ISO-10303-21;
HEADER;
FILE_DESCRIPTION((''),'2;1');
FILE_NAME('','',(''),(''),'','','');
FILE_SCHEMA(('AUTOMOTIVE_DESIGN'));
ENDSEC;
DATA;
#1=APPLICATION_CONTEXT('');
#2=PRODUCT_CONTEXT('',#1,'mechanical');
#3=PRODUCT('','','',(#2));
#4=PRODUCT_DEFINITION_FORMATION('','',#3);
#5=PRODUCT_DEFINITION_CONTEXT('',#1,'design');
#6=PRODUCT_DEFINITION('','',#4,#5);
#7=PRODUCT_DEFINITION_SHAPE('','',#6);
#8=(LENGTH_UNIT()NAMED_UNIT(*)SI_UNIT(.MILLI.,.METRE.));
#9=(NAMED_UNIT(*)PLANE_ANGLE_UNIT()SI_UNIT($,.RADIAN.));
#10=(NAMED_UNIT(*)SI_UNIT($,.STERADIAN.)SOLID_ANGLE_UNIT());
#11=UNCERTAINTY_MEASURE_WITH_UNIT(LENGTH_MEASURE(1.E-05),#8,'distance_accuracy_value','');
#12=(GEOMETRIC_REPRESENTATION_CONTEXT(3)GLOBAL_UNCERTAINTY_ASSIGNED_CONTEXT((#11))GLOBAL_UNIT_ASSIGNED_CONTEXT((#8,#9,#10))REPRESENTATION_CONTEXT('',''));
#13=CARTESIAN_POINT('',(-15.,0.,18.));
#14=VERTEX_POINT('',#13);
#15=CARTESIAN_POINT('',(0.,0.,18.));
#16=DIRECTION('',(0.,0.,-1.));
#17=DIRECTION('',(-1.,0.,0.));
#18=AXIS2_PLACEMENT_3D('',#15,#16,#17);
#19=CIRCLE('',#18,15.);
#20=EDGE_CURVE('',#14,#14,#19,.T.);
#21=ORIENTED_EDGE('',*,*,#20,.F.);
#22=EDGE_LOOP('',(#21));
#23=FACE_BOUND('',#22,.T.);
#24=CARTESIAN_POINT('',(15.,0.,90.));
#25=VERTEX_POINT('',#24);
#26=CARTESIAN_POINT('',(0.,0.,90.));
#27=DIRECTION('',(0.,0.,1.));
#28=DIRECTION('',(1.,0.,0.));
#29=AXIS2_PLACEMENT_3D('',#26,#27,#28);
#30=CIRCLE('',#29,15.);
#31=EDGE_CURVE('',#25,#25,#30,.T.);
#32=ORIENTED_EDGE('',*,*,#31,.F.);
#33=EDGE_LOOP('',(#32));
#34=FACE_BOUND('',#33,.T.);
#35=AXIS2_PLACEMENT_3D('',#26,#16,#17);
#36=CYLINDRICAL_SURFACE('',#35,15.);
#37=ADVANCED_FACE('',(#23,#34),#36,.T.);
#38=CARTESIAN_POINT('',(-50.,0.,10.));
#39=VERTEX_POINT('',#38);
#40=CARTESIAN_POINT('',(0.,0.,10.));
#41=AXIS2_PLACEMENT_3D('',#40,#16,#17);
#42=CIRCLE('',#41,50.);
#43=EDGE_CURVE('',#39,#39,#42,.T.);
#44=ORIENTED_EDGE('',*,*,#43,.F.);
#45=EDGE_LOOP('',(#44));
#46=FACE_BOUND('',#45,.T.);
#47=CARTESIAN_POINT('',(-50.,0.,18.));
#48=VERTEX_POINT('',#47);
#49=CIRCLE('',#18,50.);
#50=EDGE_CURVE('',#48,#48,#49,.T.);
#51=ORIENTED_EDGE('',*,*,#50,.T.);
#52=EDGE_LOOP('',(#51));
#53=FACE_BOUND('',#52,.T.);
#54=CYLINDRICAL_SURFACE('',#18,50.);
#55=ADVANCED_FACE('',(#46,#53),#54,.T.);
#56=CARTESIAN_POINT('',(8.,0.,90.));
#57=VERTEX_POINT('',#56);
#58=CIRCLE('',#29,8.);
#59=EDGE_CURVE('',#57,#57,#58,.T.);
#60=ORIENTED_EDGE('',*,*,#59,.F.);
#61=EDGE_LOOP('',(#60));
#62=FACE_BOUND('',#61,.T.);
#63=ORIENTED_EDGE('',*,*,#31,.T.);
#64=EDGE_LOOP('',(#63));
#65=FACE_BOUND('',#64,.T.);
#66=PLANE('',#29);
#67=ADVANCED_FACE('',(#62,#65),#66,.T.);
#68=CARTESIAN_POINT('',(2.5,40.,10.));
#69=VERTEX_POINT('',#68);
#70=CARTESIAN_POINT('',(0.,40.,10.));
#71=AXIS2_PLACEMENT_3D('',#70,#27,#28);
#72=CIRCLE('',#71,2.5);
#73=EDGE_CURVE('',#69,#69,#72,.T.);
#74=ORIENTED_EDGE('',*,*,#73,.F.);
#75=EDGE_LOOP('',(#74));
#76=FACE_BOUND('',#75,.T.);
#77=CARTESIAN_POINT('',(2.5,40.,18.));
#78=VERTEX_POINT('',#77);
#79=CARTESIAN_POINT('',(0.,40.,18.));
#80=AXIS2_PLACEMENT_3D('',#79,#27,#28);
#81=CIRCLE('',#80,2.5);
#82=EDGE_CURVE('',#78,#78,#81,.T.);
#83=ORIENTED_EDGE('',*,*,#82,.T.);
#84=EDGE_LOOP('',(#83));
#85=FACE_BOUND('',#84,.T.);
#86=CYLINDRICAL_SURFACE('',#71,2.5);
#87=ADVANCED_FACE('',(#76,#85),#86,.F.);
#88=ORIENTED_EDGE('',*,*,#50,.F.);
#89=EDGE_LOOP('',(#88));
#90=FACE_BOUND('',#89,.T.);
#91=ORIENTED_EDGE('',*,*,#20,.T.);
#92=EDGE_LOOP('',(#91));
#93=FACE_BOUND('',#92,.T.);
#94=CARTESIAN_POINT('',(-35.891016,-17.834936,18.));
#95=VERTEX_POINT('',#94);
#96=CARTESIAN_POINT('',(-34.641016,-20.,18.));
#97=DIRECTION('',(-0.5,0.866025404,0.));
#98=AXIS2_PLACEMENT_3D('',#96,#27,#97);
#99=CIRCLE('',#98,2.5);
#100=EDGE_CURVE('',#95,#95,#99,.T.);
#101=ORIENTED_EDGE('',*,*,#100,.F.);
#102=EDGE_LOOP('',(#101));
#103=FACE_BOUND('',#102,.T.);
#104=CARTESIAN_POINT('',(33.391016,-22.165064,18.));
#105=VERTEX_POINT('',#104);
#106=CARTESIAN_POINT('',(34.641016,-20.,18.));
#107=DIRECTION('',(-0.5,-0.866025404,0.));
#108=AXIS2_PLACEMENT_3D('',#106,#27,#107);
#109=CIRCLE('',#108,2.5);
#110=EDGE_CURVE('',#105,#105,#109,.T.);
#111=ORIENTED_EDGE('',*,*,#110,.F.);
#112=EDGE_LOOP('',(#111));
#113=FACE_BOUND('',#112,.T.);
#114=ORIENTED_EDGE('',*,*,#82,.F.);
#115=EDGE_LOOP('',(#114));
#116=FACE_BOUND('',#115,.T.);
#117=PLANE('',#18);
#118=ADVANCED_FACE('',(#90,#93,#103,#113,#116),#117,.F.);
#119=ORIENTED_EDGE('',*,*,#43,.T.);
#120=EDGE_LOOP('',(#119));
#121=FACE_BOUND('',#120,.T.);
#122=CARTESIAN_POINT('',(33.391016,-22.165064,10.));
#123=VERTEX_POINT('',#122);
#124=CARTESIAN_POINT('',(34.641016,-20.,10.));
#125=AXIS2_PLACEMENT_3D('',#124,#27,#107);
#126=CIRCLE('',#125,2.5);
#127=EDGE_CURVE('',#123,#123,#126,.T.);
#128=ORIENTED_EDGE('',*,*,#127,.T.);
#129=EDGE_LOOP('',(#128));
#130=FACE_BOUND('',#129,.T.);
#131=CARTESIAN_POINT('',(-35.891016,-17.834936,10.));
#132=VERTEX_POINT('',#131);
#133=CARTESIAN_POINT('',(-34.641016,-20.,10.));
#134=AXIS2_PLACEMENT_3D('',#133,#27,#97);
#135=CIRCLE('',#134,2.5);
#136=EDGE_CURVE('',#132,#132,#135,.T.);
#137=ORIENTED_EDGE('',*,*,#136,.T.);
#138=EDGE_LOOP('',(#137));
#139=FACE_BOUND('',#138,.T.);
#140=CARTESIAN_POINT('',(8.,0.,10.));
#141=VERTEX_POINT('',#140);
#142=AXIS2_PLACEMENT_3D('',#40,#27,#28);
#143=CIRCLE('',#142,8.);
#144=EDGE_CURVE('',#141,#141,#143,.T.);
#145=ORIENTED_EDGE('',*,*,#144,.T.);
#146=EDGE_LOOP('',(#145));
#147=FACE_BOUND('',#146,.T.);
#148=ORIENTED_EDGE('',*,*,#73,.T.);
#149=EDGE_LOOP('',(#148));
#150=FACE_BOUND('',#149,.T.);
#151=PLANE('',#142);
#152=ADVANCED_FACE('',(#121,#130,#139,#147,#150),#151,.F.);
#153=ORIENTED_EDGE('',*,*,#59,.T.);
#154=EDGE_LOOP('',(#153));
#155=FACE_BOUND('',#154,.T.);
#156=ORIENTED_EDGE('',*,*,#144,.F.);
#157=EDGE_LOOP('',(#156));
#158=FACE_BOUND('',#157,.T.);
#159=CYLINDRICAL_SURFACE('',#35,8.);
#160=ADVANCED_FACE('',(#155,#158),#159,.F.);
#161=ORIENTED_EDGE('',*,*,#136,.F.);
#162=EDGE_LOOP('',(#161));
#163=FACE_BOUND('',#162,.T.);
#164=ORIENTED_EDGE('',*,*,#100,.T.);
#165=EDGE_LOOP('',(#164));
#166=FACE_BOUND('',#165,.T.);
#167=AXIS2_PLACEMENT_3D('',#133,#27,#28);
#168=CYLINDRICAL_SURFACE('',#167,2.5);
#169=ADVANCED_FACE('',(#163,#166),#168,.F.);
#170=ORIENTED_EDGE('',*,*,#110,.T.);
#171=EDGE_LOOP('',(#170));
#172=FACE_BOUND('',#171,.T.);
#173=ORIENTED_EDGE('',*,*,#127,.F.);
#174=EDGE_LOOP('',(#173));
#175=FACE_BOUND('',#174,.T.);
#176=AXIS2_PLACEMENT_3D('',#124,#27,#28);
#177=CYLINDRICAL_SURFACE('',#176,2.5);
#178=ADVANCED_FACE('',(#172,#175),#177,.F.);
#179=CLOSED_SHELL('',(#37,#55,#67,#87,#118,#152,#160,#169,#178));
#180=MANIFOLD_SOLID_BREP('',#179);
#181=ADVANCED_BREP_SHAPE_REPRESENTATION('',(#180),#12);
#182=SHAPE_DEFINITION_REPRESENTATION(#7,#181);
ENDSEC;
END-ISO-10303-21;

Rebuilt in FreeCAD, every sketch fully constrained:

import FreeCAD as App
import Part
import Sketcher
from FreeCAD import Vector

doc = App.newDocument("Part")
body = doc.addObject("PartDesign::Body", "Body")

sketch1 = doc.addObject("Sketcher::SketchObject", "Sketch")
body.addObject(sketch1)
sketch1.AttachmentSupport = (doc.XY_Plane, [""])
sketch1.MapMode = "FlatFace"
sketch1.AttachmentOffset = App.Placement(Vector(0, 0, 10), App.Rotation())
sketch1.addGeometry([
    Part.Circle(Vector(0, 0, 0), Vector(0, 0, 1), 15),
    Part.Circle(Vector(0, 0, 0), Vector(0, 0, 1), 8),
], False)
sketch1.addConstraint([
    Sketcher.Constraint("Coincident", 0, 3, -1, 1),
    Sketcher.Constraint("Coincident", 1, 3, -1, 1),
    Sketcher.Constraint("Diameter", 0, 30.0),
    Sketcher.Constraint("Diameter", 1, 16.0),
])
pad1 = doc.addObject("PartDesign::Pad", "Pad")
body.addObject(pad1)
pad1.Profile = sketch1
pad1.Length = 80

sketch2 = doc.addObject("Sketcher::SketchObject", "Sketch001")
body.addObject(sketch2)
sketch2.AttachmentSupport = (doc.XY_Plane, [""])
sketch2.MapMode = "FlatFace"
sketch2.AttachmentOffset = App.Placement(Vector(0, 0, 10), App.Rotation())
sketch2.addGeometry([
    Part.Circle(Vector(0, 0, 0), Vector(0, 0, 1), 50),
    Part.Circle(Vector(0, 0, 0), Vector(0, 0, 1), 12.5),
], False)
sketch2.addConstraint([
    Sketcher.Constraint("Coincident", 0, 3, -1, 1),
    Sketcher.Constraint("Coincident", 1, 3, -1, 1),
    Sketcher.Constraint("Diameter", 0, 100.0),
    Sketcher.Constraint("Diameter", 1, 25.0),
])
pad2 = doc.addObject("PartDesign::Pad", "Pad001")
body.addObject(pad2)
pad2.Profile = sketch2
pad2.Length = 8

sketch3 = doc.addObject("Sketcher::SketchObject", "Sketch002")
body.addObject(sketch3)
sketch3.AttachmentSupport = (doc.XY_Plane, [""])
sketch3.MapMode = "FlatFace"
sketch3.AttachmentOffset = App.Placement(Vector(0, 0, 18), App.Rotation())
sketch3.addGeometry(Part.Circle(Vector(0, 40, 0), Vector(0, 0, 1), 2.5), False)
sketch3.addConstraint([
    Sketcher.Constraint("PointOnObject", 0, 3, -2),
    Sketcher.Constraint("Diameter", 0, 5.0),
    Sketcher.Constraint("DistanceY", -1, 1, 0, 3, 40.0),
])
pocket1 = doc.addObject("PartDesign::Pocket", "Pocket")
body.addObject(pocket1)
pocket1.Profile = sketch3
pocket1.Length = 8
doc.recompute()

polarpattern = doc.addObject("PartDesign::PolarPattern", "PolarPattern")
body.addObject(polarpattern)
polarpattern.Originals = [pocket1]
polarpattern.Axis = (doc.Z_Axis, [""])
polarpattern.Angle = 360
polarpattern.Occurrences = 3
body.Tip = polarpattern

doc.recompute()
